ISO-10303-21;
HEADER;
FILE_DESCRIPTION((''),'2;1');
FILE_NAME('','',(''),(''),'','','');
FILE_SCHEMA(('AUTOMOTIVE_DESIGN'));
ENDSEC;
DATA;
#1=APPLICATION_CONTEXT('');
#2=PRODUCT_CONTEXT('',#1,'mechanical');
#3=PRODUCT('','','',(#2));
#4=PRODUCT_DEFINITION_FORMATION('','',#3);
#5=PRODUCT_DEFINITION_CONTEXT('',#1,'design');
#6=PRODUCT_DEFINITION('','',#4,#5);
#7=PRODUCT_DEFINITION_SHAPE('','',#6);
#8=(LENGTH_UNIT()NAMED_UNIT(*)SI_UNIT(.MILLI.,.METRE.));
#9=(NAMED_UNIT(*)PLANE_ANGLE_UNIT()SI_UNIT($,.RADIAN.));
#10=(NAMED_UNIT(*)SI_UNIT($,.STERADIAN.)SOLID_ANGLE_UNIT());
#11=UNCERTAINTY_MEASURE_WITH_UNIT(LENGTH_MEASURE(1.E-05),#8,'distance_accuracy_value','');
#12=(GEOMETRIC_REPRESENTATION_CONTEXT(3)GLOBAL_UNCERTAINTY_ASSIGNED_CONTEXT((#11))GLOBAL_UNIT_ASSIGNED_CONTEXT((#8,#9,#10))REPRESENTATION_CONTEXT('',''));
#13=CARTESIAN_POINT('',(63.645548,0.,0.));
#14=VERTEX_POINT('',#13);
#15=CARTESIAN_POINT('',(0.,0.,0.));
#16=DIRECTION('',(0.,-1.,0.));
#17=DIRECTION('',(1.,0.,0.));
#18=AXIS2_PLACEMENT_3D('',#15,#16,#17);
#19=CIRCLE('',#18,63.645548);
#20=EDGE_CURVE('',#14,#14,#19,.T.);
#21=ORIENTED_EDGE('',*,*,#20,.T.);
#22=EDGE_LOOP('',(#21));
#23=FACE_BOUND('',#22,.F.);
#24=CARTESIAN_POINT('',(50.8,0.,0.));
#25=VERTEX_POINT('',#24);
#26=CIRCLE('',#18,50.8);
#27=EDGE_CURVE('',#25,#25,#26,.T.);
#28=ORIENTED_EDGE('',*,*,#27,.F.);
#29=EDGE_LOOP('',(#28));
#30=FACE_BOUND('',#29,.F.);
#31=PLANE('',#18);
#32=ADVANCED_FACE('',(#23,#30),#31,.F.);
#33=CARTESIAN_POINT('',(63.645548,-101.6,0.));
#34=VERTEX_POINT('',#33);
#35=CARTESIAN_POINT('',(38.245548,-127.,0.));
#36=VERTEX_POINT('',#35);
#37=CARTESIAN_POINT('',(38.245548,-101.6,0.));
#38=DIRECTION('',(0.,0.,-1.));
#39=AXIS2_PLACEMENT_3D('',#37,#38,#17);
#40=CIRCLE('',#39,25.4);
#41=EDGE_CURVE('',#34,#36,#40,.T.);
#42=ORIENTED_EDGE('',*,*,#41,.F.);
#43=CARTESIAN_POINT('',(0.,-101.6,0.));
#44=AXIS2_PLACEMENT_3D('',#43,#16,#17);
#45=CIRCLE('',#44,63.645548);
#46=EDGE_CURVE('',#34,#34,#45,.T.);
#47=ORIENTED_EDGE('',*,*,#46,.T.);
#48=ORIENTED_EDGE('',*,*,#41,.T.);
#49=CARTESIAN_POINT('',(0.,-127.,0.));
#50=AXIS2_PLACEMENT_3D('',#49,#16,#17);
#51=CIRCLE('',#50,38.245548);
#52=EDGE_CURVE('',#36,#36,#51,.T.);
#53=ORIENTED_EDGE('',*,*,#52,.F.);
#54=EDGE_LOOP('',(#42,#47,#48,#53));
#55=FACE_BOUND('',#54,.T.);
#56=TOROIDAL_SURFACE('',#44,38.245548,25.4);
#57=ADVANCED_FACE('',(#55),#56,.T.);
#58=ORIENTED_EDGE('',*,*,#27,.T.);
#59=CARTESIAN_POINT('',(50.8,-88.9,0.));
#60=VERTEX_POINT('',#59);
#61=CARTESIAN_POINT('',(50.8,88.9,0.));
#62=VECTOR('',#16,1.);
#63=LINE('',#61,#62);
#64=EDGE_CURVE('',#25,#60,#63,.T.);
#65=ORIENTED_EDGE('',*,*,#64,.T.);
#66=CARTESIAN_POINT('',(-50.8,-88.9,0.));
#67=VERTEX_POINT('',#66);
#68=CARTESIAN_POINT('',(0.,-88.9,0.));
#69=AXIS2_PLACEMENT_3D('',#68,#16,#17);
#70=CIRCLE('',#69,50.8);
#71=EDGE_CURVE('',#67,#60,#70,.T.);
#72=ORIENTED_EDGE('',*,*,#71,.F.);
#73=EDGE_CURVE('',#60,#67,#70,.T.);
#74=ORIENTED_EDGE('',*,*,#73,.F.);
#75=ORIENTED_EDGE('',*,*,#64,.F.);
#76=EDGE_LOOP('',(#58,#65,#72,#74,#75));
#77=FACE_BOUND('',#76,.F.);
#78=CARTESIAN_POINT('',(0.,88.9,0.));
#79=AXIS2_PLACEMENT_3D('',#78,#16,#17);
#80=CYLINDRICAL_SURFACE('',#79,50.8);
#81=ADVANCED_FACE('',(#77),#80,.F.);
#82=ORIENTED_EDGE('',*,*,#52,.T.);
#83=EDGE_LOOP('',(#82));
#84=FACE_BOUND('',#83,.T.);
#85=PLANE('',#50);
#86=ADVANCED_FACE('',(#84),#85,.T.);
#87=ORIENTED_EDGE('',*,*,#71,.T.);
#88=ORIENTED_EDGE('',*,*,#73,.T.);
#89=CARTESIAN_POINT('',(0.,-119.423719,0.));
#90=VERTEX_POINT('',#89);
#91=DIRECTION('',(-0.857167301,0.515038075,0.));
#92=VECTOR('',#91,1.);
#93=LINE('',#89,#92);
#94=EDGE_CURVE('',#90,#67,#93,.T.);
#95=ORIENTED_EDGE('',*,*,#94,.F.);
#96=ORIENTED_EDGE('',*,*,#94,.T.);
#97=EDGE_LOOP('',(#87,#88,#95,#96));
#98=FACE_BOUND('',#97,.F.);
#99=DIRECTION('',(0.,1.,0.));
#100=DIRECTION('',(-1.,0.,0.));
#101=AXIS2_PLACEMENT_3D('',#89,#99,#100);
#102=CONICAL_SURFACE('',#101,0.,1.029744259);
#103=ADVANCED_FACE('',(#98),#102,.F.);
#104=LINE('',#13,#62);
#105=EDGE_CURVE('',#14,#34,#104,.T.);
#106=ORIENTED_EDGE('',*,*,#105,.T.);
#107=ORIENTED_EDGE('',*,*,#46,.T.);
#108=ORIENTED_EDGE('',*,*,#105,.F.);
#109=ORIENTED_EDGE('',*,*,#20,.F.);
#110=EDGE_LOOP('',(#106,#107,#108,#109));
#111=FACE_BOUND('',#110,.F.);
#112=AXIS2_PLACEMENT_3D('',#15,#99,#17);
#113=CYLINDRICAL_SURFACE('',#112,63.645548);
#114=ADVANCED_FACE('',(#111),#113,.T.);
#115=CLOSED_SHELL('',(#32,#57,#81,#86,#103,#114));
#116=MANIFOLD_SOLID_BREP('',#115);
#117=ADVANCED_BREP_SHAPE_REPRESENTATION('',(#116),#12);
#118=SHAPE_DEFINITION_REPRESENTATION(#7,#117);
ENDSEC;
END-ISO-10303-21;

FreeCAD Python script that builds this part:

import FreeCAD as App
import Part
import Sketcher
Q = App.Units.Quantity


def edges_at(feature, points):
    """Names of the edges that pass closest to the given points."""
    edges = feature.Shape.Edges
    near = lambda p: min(range(len(edges)), key=lambda i: edges[i].distToShape(Part.Vertex(*p))[0])
    return sorted({f"Edge{near(p) + 1}" for p in points})

doc = App.newDocument("Part")
body = doc.addObject("PartDesign::Body", "Body")

# Sketch on XZ plane
sketch1 = doc.addObject("Sketcher::SketchObject", "Sketch")
body.addObject(sketch1)
sketch1.AttachmentSupport = (doc.XZ_Plane, [""])
sketch1.MapMode = "FlatFace"
sketch1.addGeometry(Part.Circle(App.Vector(0, 0, 0), App.Vector(0, 0, 1), 64), False)
sketch1.addConstraint([
    Sketcher.Constraint("Coincident", 0, 3, -1, 1),
    Sketcher.Constraint("Diameter", 0, Q("127.291097 mm")),
])
pad1 = doc.addObject("PartDesign::Pad", "Pad")
body.addObject(pad1)
pad1.Profile = sketch1
pad1.Length = Q("5 in")
doc.recompute()

fillet = doc.addObject("PartDesign::Fillet", "Fillet")
body.addObject(fillet)
fillet.Base = (pad1, edges_at(pad1, [(-63.646, -127, 0)]))
fillet.Radius = Q("1 in")

# Sketch on XZ plane
sketch2 = doc.addObject("Sketcher::SketchObject", "Sketch001")
body.addObject(sketch2)
sketch2.AttachmentSupport = (doc.XZ_Plane, [""])
sketch2.MapMode = "FlatFace"
sketch2.addGeometry(Part.Circle(App.Vector(0, 0, 0), App.Vector(0, 0, 1), 51), False)
sketch2.addConstraint([
    Sketcher.Constraint("Coincident", 0, 3, -1, 1),
    Sketcher.Constraint("Diameter", 0, Q("4 in")),
])
doc.recompute()
hole = doc.addObject("PartDesign::Hole", "Hole")
body.addObject(hole)
hole.Profile = sketch2
hole.ThreadType = "None"
hole.Diameter = Q("4 in")
hole.DepthType = "Dimension"
hole.Depth = Q("3.5 in")
hole.DrillPoint = "Angled"
hole.DrillPointAngle = 118
hole.Reversed = True

doc.recompute()
